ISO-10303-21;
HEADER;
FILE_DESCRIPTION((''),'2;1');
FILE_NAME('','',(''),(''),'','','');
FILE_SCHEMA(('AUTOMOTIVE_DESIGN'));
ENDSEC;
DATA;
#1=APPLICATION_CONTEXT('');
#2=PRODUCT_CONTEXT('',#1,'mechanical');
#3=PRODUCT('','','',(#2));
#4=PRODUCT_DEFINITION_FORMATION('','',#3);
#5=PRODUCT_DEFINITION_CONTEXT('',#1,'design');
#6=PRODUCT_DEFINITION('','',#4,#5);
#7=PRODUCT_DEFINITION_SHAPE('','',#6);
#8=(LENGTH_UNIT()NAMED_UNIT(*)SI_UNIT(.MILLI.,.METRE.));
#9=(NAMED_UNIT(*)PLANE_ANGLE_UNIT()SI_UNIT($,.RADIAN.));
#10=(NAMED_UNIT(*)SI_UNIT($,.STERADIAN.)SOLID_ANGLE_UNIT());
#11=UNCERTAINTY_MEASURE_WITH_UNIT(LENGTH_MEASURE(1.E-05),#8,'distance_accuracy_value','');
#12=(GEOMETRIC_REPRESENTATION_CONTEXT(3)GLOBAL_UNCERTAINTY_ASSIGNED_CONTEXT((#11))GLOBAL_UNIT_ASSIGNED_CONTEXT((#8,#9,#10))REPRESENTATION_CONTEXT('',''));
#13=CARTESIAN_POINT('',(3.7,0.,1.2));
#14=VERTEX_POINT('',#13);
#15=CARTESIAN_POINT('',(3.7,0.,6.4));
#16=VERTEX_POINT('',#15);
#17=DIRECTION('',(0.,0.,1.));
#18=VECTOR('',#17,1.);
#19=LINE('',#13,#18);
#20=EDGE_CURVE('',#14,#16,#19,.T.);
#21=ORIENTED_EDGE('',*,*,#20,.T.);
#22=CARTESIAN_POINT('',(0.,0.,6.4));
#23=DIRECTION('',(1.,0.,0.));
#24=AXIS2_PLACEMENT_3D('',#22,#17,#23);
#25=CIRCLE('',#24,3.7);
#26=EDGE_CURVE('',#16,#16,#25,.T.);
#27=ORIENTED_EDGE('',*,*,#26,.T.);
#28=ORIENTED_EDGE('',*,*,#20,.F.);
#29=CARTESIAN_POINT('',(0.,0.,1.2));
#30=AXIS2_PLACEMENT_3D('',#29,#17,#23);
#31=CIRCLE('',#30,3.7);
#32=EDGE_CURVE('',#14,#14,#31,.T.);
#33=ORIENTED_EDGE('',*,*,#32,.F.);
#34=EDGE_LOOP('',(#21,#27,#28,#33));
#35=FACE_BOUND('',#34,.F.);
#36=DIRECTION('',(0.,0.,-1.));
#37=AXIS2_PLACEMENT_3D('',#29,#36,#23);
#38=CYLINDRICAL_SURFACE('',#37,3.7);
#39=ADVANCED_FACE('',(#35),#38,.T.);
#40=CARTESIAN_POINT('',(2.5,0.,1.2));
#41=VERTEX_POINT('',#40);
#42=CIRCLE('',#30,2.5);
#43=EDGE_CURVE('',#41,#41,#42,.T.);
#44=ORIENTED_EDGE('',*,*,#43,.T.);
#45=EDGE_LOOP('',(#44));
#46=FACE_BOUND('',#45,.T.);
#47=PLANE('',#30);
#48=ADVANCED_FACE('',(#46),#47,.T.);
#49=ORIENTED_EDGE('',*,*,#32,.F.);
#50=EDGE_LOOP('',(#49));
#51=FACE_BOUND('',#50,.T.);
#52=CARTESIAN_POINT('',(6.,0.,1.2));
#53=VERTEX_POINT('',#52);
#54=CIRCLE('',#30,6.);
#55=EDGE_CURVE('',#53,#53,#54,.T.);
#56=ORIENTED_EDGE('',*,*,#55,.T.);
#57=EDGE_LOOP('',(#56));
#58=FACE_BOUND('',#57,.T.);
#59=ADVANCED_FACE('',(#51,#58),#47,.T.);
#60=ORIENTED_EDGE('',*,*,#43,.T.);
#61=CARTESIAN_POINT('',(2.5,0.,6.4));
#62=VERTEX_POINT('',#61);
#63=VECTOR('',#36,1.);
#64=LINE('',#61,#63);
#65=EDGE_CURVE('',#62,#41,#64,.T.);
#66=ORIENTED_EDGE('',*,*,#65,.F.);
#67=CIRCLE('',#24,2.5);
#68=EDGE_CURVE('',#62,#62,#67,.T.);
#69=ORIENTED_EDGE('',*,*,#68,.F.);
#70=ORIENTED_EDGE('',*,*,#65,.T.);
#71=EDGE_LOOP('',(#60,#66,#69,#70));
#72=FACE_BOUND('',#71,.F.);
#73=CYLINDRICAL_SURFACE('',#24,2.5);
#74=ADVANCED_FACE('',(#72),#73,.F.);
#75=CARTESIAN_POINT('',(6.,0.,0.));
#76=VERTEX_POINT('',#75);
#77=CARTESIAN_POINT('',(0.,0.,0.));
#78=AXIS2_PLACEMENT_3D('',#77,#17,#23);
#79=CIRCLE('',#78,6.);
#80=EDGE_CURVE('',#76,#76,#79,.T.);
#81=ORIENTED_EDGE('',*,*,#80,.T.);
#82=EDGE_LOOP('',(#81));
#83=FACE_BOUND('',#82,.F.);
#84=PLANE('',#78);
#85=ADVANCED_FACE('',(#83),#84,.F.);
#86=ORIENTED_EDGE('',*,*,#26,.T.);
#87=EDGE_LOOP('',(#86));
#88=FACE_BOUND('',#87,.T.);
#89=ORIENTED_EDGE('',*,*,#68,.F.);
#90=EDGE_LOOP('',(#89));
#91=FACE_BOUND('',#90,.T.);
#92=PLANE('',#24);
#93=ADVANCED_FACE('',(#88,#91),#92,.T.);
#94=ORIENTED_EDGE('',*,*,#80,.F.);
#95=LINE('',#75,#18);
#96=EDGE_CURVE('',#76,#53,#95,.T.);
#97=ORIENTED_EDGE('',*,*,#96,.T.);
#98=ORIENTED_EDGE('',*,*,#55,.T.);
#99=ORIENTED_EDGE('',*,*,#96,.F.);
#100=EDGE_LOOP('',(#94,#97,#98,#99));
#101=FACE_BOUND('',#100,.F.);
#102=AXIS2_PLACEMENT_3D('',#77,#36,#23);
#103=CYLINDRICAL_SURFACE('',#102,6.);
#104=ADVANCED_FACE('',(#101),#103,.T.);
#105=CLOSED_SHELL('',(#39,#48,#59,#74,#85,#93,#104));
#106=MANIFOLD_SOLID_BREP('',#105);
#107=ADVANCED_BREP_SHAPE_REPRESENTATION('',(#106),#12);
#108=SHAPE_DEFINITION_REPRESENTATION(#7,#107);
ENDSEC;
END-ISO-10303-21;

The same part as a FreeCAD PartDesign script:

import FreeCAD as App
import Part
import Sketcher

doc = App.newDocument("Part")
body = doc.addObject("PartDesign::Body", "Body")

# Sketch on XY plane
sketch1 = doc.addObject("Sketcher::SketchObject", "Sketch")
body.addObject(sketch1)
sketch1.AttachmentSupport = (doc.XY_Plane, [""])
sketch1.MapMode = "FlatFace"
sketch1.addGeometry(Part.Circle(App.Vector(0, 0, 0), App.Vector(0, 0, 1), 6), False)
sketch1.addConstraint([
    Sketcher.Constraint("Coincident", 0, 3, -1, 1),
    Sketcher.Constraint("Diameter", 0, 12.0),
])
pad1 = doc.addObject("PartDesign::Pad", "Pad")
body.addObject(pad1)
pad1.Profile = sketch1
pad1.Length = 1.2

# Sketch on XY plane
sketch2 = doc.addObject("Sketcher::SketchObject", "Sketch001")
body.addObject(sketch2)
sketch2.AttachmentSupport = (doc.XY_Plane, [""])
sketch2.MapMode = "FlatFace"
sketch2.AttachmentOffset = App.Placement(App.Vector(0, 0, 1.2), App.Rotation())
sketch2.addGeometry(Part.Circle(App.Vector(0, 0, 0), App.Vector(0, 0, 1), 3.7), False)
sketch2.addConstraint([
    Sketcher.Constraint("Coincident", 0, 3, -1, 1),
    Sketcher.Constraint("Diameter", 0, 7.4),
])
pad2 = doc.addObject("PartDesign::Pad", "Pad001")
body.addObject(pad2)
pad2.Profile = sketch2
pad2.Length = 5.2

# Sketch on XY plane
sketch3 = doc.addObject("Sketcher::SketchObject", "Sketch002")
body.addObject(sketch3)
sketch3.AttachmentSupport = (doc.XY_Plane, [""])
sketch3.MapMode = "FlatFace"
sketch3.AttachmentOffset = App.Placement(App.Vector(0, 0, 6.4), App.Rotation())
sketch3.addGeometry(Part.Circle(App.Vector(0, 0, 0), App.Vector(0, 0, 1), 2.5), False)
sketch3.addConstraint([
    Sketcher.Constraint("Coincident", 0, 3, -1, 1),
    Sketcher.Constraint("Diameter", 0, 5.0),
])
pocket1 = doc.addObject("PartDesign::Pocket", "Pocket")
body.addObject(pocket1)
pocket1.Profile = sketch3
pocket1.Length = 5.2

doc.recompute()
